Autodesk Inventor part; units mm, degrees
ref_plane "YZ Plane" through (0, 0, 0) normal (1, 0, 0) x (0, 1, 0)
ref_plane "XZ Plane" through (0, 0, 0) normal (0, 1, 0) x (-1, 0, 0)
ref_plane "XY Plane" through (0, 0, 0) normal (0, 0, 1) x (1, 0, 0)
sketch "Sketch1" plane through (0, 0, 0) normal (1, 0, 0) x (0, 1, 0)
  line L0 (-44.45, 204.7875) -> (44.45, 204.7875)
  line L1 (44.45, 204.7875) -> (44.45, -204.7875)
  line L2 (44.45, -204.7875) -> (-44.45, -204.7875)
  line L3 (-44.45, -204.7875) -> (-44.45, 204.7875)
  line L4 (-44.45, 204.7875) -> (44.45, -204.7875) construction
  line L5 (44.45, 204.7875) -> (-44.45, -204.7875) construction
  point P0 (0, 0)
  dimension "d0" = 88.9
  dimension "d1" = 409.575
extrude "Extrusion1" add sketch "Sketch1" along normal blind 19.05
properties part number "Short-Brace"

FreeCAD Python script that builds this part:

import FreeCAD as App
import Part
import Sketcher

V = App.Vector
Q = App.Units.Quantity


def add_polygon(sketch, points):
    """Adds a closed chain of lines whose ends are joined by coincident constraints."""
    first, n = sketch.GeometryCount, len(points)
    for a, b in zip(points, points[1:] + points[:1]):
        sketch.addGeometry(Part.LineSegment(App.Vector(*a, 0), App.Vector(*b, 0)), False)
    for i in range(n):
        sketch.addConstraint(Sketcher.Constraint("Coincident", first + i, 2, first + (i + 1) % n, 1))

doc = App.newDocument("Part")
body = doc.addObject("PartDesign::Body", "Body")

# Sketch on YZ plane
sketch1 = body.newObject("Sketcher::SketchObject", "Sketch")
sketch1.AttachmentSupport = (doc.getObject("YZ_Plane"), [""])
sketch1.MapMode = "FlatFace"
add_polygon(sketch1, [(44, 205), (-44, 205), (-44, -205), (44, -205)])  # lines 0-3
sketch1.addConstraint(Sketcher.Constraint("Horizontal", 0))
sketch1.addConstraint(Sketcher.Constraint("Vertical", 1))
sketch1.addConstraint(Sketcher.Constraint("Horizontal", 2))
sketch1.addConstraint(Sketcher.Constraint("Vertical", 3))
sketch1.addConstraint(Sketcher.Constraint("Symmetric", 0, 2, 2, 2, -1, 1))
sketch1.addConstraint(Sketcher.Constraint("DistanceX", 0, 2, 0, 1, Q("3.5 in")))
sketch1.addConstraint(Sketcher.Constraint("DistanceY", 1, 2, 1, 1, Q("16.125 in")))
pad1 = body.newObject("PartDesign::Pad", "Pad")
pad1.Profile = sketch1
pad1.Length = Q("0.75 in")

doc.recompute()
